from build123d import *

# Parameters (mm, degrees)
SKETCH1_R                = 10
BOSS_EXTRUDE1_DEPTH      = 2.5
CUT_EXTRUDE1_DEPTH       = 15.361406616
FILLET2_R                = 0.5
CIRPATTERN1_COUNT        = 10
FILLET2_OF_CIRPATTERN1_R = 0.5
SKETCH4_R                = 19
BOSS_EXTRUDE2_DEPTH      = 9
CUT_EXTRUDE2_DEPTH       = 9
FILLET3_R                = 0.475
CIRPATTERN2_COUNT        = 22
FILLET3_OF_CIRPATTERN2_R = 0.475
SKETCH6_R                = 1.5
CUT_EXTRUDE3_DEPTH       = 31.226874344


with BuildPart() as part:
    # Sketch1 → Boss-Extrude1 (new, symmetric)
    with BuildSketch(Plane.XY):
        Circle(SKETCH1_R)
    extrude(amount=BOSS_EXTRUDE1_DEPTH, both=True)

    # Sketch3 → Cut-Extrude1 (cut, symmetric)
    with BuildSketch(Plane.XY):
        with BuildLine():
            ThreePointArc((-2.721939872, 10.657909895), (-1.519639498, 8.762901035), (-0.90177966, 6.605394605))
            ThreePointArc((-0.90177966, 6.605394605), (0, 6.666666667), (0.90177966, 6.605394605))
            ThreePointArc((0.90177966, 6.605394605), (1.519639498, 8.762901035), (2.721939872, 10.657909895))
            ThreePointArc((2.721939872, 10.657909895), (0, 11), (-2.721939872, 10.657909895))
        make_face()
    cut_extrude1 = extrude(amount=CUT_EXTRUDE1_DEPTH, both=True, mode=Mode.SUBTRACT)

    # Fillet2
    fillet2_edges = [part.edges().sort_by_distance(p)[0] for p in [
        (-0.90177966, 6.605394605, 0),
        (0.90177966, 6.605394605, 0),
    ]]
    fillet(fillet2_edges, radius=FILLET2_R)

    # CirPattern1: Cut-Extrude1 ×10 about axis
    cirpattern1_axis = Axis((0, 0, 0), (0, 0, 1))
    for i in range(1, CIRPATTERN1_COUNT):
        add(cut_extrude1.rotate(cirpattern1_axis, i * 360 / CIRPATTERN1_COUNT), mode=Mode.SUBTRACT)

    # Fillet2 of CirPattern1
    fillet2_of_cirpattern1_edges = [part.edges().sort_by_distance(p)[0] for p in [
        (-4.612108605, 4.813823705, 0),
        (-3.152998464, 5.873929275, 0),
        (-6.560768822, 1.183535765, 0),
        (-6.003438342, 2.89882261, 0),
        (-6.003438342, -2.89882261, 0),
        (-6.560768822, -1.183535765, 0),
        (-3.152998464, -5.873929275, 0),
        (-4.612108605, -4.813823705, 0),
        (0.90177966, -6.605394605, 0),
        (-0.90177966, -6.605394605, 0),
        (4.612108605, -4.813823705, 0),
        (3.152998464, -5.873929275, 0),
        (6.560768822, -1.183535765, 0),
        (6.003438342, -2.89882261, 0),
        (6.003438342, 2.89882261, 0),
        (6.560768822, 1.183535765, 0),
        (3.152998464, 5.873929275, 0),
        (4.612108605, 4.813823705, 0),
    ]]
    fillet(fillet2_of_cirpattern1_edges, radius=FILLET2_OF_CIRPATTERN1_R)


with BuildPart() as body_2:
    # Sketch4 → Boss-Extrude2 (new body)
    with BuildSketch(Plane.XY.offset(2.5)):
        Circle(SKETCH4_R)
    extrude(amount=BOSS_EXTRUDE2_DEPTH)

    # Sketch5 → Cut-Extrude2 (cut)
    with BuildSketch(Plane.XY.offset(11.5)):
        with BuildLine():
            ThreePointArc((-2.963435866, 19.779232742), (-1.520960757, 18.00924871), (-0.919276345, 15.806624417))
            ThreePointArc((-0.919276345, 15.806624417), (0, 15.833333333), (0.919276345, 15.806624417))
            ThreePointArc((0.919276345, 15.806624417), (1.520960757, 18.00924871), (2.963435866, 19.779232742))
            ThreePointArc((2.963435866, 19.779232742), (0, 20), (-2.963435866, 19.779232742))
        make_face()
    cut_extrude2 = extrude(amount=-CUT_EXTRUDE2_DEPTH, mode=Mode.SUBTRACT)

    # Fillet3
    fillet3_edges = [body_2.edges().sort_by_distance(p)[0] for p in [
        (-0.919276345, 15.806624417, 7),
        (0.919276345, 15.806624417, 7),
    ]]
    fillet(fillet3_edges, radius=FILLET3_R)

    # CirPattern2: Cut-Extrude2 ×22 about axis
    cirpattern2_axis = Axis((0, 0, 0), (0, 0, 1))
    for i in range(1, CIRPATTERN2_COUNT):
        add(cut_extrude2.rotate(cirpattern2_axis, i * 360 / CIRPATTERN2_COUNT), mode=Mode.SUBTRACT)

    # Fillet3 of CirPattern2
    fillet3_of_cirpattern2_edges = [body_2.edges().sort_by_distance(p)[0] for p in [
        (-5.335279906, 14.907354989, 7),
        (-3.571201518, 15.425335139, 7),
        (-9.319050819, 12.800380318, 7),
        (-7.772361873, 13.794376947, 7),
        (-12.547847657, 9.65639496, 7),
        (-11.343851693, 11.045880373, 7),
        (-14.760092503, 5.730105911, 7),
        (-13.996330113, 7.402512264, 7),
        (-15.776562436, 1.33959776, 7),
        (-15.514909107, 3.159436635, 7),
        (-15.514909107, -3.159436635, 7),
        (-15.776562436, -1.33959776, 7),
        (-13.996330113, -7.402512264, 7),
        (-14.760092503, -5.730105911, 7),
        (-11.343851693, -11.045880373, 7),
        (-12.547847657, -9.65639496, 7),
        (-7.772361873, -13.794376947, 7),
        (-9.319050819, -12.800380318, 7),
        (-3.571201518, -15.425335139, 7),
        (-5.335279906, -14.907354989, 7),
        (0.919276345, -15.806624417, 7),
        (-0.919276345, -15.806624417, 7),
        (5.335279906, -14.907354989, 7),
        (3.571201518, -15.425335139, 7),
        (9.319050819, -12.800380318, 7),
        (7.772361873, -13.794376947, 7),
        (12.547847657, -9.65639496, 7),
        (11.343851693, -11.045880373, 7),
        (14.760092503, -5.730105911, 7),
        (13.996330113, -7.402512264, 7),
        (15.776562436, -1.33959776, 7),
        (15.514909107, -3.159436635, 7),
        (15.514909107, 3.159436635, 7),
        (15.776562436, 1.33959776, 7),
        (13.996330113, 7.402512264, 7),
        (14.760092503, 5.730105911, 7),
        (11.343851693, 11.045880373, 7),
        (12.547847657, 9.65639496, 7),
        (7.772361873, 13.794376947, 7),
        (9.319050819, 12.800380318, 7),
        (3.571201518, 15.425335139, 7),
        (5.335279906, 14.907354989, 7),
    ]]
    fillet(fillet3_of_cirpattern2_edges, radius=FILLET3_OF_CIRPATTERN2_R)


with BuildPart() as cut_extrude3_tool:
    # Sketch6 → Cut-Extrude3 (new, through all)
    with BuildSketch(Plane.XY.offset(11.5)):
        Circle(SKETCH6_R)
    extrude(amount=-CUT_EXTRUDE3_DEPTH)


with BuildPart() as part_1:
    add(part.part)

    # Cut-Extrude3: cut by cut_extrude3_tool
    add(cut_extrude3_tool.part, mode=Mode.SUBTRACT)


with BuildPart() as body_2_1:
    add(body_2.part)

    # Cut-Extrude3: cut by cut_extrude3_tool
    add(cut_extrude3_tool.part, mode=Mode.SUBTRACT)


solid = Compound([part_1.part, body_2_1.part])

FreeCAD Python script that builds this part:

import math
import FreeCAD as App
import Part
import Sketcher
Q = App.Units.Quantity


def edges_at(feature, points):
    """Names of the edges that pass closest to the given points."""
    edges = feature.Shape.Edges
    near = lambda p: min(range(len(edges)), key=lambda i: edges[i].distToShape(Part.Vertex(*p))[0])
    return sorted({f"Edge{near(p) + 1}" for p in points})

doc = App.newDocument("Part")
body = doc.addObject("PartDesign::Body", "Body")

sketch1 = body.newObject("Sketcher::SketchObject", "Sketch")
sketch1.AttachmentSupport = (doc.getObject("XY_Plane"), [""])
sketch1.MapMode = "FlatFace"
sketch1.addGeometry(Part.Circle(App.Vector(0, 0, 0), App.Vector(0, 0, 1), 10), False)
sketch1.addConstraint([
    Sketcher.Constraint("Coincident", 0, 3, -1, 1),
    Sketcher.Constraint("Diameter", 0, Q("20 mm")),
])
pad1 = body.newObject("PartDesign::Pad", "Pad")
pad1.Profile = sketch1
pad1.Length = 5
pad1.Midplane = True

sketch2 = body.newObject("Sketcher::SketchObject", "Sketch001")
sketch2.AttachmentSupport = (doc.getObject("XY_Plane"), [""])
sketch2.MapMode = "FlatFace"
sketch2.addGeometry([
    Part.ArcOfCircle(Part.Circle(App.Vector(-8.7, 5.5, 0), App.Vector(0, 0, 1), 7.9), math.radians(8), math.radians(41)),
    Part.ArcOfCircle(Part.Circle(App.Vector(0, 0, 0), App.Vector(0, 0, 1), 6.7), math.radians(82.23), math.radians(97.77)),
    Part.ArcOfCircle(Part.Circle(App.Vector(8.7, 5.5, 0), App.Vector(0, 0, 1), 7.9), math.radians(139), math.radians(172)),
    Part.ArcOfCircle(Part.Circle(App.Vector(0, 0, 0), App.Vector(0, 0, 1), 11), math.radians(76), math.radians(104)),
], False)
sketch2.addConstraint([
    Sketcher.Constraint("Coincident", 0, 1, 1, 2),
    Sketcher.Constraint("Coincident", 1, 1, 2, 2),
    Sketcher.Constraint("Coincident", 2, 1, 3, 1),
    Sketcher.Constraint("Coincident", 3, 2, 0, 2),
    Sketcher.Constraint("Coincident", 1, 3, -1, 1),
    Sketcher.Constraint("Coincident", 3, 3, -1, 1),
    Sketcher.Constraint("Equal", 0, 2),
    Sketcher.Constraint("Symmetric", 0, 3, 2, 3, -2),
    Sketcher.Constraint("Radius", 3, Q("11 mm")),
    Sketcher.Constraint("Radius", 0, Q("7.861265 mm")),
    Sketcher.Constraint("Radius", 1, Q("6.666667 mm")),
    Sketcher.Constraint("DistanceX", 0, 1, -1, 1, Q("0.90178 mm")),
    Sketcher.Constraint("DistanceX", -1, 1, 2, 1, Q("2.72194 mm")),
])
pocket1 = body.newObject("PartDesign::Pocket", "Pocket")
pocket1.Profile = sketch2
pocket1.Length = 30.722813
pocket1.Midplane = True
doc.recompute()

fillet = body.newObject("PartDesign::Fillet", "Fillet")
fillet.Base = (pocket1, edges_at(pocket1, [(-0.902, 6.605, 0), (0.902, 6.605, 0)]))
fillet.Radius = 0.5
doc.recompute()

polarpattern = body.newObject("PartDesign::PolarPattern", "PolarPattern")
polarpattern.Originals = [pocket1]
polarpattern.Axis = (doc.getObject("Z_Axis"), [""])
polarpattern.Angle = 360
polarpattern.Occurrences = 10
body.Tip = polarpattern
doc.recompute()

fillet2 = body.newObject("PartDesign::Fillet", "Fillet001")
fillet2.Base = (polarpattern, edges_at(polarpattern, [
    (-4.612, 4.814, 0),
    (-3.153, 5.874, 0),
    (-6.561, 1.184, 0),
    (-6.003, 2.899, 0),
    (-6.003, -2.899, 0),
    (-6.561, -1.184, 0),
    (-3.153, -5.874, 0),
    (-4.612, -4.814, 0),
    (0.902, -6.605, 0),
    (-0.902, -6.605, 0),
    (4.612, -4.814, 0),
    (3.153, -5.874, 0),
    (6.561, -1.184, 0),
    (6.003, -2.899, 0),
    (6.003, 2.899, 0),
    (6.561, 1.184, 0),
    (3.153, 5.874, 0),
    (4.612, 4.814, 0),
]))
fillet2.Radius = 0.5
body2 = doc.addObject("PartDesign::Body", "Body001")

sketch3 = body2.newObject("Sketcher::SketchObject", "Sketch002")
sketch3.AttachmentSupport = (doc.getObject("XY_Plane001"), [""])
sketch3.MapMode = "FlatFace"
sketch3.AttachmentOffset = App.Placement(App.Vector(0, 0, 2.5), App.Rotation())
sketch3.addGeometry(Part.Circle(App.Vector(0, 0, 0), App.Vector(0, 0, 1), 19), False)
sketch3.addConstraint([
    Sketcher.Constraint("Coincident", 0, 3, -1, 1),
    Sketcher.Constraint("Diameter", 0, Q("38 mm")),
])
pad2 = body2.newObject("PartDesign::Pad", "Pad001")
pad2.Profile = sketch3
pad2.Length = 9

sketch4 = body2.newObject("Sketcher::SketchObject", "Sketch003")
sketch4.AttachmentSupport = (doc.getObject("XY_Plane001"), [""])
sketch4.MapMode = "FlatFace"
sketch4.AttachmentOffset = App.Placement(App.Vector(0, 0, 11.5), App.Rotation())
sketch4.addGeometry([
    Part.ArcOfCircle(Part.Circle(App.Vector(-6.4, 15.5, 0), App.Vector(0, 0, 1), 5.5), math.radians(3), math.radians(51)),
    Part.ArcOfCircle(Part.Circle(App.Vector(0, 0, 0), App.Vector(0, 0, 1), 15.8), math.radians(86.67), math.radians(93.33)),
    Part.ArcOfCircle(Part.Circle(App.Vector(6.4, 15.5, 0), App.Vector(0, 0, 1), 5.5), math.radians(129), math.radians(177)),
    Part.ArcOfCircle(Part.Circle(App.Vector(0, 0, 0), App.Vector(0, 0, 1), 20), math.radians(81.48), math.radians(98.52)),
], False)
sketch4.addConstraint([
    Sketcher.Constraint("Coincident", 0, 1, 1, 2),
    Sketcher.Constraint("Coincident", 1, 1, 2, 2),
    Sketcher.Constraint("Coincident", 2, 1, 3, 1),
    Sketcher.Constraint("Coincident", 3, 2, 0, 2),
    Sketcher.Constraint("Coincident", 1, 3, -1, 1),
    Sketcher.Constraint("Coincident", 3, 3, -1, 1),
    Sketcher.Constraint("Equal", 0, 2),
    Sketcher.Constraint("Symmetric", 0, 3, 2, 3, -2),
    Sketcher.Constraint("Radius", 3, Q("20 mm")),
    Sketcher.Constraint("Radius", 0, Q("5.513676 mm")),
    Sketcher.Constraint("Radius", 1, Q("15.833334 mm")),
    Sketcher.Constraint("DistanceX", 0, 3, -1, 1, Q("6.423651 mm")),
    Sketcher.Constraint("DistanceY", 0, 3, 0, 1, Q("0.320122 mm")),
])
pocket2 = body2.newObject("PartDesign::Pocket", "Pocket001")
pocket2.Profile = sketch4
pocket2.Length = 9
doc.recompute()

fillet3 = body2.newObject("PartDesign::Fillet", "Fillet002")
fillet3.Base = (pocket2, edges_at(pocket2, [(-0.919, 15.807, 7), (0.919, 15.807, 7)]))
fillet3.Radius = 0.475
doc.recompute()

polarpattern2 = body2.newObject("PartDesign::PolarPattern", "PolarPattern001")
polarpattern2.Originals = [pocket2]
polarpattern2.Axis = (doc.getObject("Z_Axis001"), [""])
polarpattern2.Angle = 360
polarpattern2.Occurrences = 22
body2.Tip = polarpattern2
doc.recompute()

fillet4 = body2.newObject("PartDesign::Fillet", "Fillet003")
fillet4.Base = (polarpattern2, edges_at(polarpattern2, [
    (-5.335, 14.907, 7),
    (-3.571, 15.425, 7),
    (-9.319, 12.8, 7),
    (-7.772, 13.794, 7),
    (-12.548, 9.656, 7),
    (-11.344, 11.046, 7),
    (-14.76, 5.73, 7),
    (-13.996, 7.403, 7),
    (-15.777, 1.34, 7),
    (-15.515, 3.159, 7),
    (-15.515, -3.159, 7),
    (-15.777, -1.34, 7),
    (-13.996, -7.403, 7),
    (-14.76, -5.73, 7),
    (-11.344, -11.046, 7),
    (-12.548, -9.656, 7),
    (-7.772, -13.794, 7),
    (-9.319, -12.8, 7),
    (-3.571, -15.425, 7),
    (-5.335, -14.907, 7),
    (0.919, -15.807, 7),
    (-0.919, -15.807, 7),
    (5.335, -14.907, 7),
    (3.571, -15.425, 7),
    (9.319, -12.8, 7),
    (7.772, -13.794, 7),
    (12.548, -9.656, 7),
    (11.344, -11.046, 7),
    (14.76, -5.73, 7),
    (13.996, -7.403, 7),
    (15.777, -1.34, 7),
    (15.515, -3.159, 7),
    (15.515, 3.159, 7),
    (15.777, 1.34, 7),
    (13.996, 7.403, 7),
    (14.76, 5.73, 7),
    (11.344, 11.046, 7),
    (12.548, 9.656, 7),
    (7.772, 13.794, 7),
    (9.319, 12.8, 7),
    (3.571, 15.425, 7),
    (5.335, 14.907, 7),
]))
fillet4.Radius = 0.475
body3 = doc.addObject("PartDesign::Body", "Body002")

sketch5 = body3.newObject("Sketcher::SketchObject", "Sketch004")
sketch5.AttachmentSupport = (doc.getObject("XY_Plane002"), [""])
sketch5.MapMode = "FlatFace"
sketch5.AttachmentOffset = App.Placement(App.Vector(0, 0, 11.5), App.Rotation())
sketch5.addGeometry(Part.Circle(App.Vector(0, 0, 0), App.Vector(0, 0, 1), 1.5), False)
sketch5.addConstraint([
    Sketcher.Constraint("Coincident", 0, 3, -1, 1),
    Sketcher.Constraint("Diameter", 0, Q("3 mm")),
])
pad3 = body3.newObject("PartDesign::Pad", "Pad002")
pad3.Profile = sketch5
pad3.Length = 31.226874
pad3.Reversed = True
doc.recompute()

body4 = doc.addObject("PartDesign::Body", "Body003")
body4.BaseFeature = body3
boolean = body.newObject("PartDesign::Boolean", "Boolean")
boolean.Type = "Cut"
boolean.addObjects([body4])
doc.recompute()

boolean2 = body2.newObject("PartDesign::Boolean", "Boolean001")
boolean2.Type = "Cut"
boolean2.addObjects([body3])

doc.recompute()
